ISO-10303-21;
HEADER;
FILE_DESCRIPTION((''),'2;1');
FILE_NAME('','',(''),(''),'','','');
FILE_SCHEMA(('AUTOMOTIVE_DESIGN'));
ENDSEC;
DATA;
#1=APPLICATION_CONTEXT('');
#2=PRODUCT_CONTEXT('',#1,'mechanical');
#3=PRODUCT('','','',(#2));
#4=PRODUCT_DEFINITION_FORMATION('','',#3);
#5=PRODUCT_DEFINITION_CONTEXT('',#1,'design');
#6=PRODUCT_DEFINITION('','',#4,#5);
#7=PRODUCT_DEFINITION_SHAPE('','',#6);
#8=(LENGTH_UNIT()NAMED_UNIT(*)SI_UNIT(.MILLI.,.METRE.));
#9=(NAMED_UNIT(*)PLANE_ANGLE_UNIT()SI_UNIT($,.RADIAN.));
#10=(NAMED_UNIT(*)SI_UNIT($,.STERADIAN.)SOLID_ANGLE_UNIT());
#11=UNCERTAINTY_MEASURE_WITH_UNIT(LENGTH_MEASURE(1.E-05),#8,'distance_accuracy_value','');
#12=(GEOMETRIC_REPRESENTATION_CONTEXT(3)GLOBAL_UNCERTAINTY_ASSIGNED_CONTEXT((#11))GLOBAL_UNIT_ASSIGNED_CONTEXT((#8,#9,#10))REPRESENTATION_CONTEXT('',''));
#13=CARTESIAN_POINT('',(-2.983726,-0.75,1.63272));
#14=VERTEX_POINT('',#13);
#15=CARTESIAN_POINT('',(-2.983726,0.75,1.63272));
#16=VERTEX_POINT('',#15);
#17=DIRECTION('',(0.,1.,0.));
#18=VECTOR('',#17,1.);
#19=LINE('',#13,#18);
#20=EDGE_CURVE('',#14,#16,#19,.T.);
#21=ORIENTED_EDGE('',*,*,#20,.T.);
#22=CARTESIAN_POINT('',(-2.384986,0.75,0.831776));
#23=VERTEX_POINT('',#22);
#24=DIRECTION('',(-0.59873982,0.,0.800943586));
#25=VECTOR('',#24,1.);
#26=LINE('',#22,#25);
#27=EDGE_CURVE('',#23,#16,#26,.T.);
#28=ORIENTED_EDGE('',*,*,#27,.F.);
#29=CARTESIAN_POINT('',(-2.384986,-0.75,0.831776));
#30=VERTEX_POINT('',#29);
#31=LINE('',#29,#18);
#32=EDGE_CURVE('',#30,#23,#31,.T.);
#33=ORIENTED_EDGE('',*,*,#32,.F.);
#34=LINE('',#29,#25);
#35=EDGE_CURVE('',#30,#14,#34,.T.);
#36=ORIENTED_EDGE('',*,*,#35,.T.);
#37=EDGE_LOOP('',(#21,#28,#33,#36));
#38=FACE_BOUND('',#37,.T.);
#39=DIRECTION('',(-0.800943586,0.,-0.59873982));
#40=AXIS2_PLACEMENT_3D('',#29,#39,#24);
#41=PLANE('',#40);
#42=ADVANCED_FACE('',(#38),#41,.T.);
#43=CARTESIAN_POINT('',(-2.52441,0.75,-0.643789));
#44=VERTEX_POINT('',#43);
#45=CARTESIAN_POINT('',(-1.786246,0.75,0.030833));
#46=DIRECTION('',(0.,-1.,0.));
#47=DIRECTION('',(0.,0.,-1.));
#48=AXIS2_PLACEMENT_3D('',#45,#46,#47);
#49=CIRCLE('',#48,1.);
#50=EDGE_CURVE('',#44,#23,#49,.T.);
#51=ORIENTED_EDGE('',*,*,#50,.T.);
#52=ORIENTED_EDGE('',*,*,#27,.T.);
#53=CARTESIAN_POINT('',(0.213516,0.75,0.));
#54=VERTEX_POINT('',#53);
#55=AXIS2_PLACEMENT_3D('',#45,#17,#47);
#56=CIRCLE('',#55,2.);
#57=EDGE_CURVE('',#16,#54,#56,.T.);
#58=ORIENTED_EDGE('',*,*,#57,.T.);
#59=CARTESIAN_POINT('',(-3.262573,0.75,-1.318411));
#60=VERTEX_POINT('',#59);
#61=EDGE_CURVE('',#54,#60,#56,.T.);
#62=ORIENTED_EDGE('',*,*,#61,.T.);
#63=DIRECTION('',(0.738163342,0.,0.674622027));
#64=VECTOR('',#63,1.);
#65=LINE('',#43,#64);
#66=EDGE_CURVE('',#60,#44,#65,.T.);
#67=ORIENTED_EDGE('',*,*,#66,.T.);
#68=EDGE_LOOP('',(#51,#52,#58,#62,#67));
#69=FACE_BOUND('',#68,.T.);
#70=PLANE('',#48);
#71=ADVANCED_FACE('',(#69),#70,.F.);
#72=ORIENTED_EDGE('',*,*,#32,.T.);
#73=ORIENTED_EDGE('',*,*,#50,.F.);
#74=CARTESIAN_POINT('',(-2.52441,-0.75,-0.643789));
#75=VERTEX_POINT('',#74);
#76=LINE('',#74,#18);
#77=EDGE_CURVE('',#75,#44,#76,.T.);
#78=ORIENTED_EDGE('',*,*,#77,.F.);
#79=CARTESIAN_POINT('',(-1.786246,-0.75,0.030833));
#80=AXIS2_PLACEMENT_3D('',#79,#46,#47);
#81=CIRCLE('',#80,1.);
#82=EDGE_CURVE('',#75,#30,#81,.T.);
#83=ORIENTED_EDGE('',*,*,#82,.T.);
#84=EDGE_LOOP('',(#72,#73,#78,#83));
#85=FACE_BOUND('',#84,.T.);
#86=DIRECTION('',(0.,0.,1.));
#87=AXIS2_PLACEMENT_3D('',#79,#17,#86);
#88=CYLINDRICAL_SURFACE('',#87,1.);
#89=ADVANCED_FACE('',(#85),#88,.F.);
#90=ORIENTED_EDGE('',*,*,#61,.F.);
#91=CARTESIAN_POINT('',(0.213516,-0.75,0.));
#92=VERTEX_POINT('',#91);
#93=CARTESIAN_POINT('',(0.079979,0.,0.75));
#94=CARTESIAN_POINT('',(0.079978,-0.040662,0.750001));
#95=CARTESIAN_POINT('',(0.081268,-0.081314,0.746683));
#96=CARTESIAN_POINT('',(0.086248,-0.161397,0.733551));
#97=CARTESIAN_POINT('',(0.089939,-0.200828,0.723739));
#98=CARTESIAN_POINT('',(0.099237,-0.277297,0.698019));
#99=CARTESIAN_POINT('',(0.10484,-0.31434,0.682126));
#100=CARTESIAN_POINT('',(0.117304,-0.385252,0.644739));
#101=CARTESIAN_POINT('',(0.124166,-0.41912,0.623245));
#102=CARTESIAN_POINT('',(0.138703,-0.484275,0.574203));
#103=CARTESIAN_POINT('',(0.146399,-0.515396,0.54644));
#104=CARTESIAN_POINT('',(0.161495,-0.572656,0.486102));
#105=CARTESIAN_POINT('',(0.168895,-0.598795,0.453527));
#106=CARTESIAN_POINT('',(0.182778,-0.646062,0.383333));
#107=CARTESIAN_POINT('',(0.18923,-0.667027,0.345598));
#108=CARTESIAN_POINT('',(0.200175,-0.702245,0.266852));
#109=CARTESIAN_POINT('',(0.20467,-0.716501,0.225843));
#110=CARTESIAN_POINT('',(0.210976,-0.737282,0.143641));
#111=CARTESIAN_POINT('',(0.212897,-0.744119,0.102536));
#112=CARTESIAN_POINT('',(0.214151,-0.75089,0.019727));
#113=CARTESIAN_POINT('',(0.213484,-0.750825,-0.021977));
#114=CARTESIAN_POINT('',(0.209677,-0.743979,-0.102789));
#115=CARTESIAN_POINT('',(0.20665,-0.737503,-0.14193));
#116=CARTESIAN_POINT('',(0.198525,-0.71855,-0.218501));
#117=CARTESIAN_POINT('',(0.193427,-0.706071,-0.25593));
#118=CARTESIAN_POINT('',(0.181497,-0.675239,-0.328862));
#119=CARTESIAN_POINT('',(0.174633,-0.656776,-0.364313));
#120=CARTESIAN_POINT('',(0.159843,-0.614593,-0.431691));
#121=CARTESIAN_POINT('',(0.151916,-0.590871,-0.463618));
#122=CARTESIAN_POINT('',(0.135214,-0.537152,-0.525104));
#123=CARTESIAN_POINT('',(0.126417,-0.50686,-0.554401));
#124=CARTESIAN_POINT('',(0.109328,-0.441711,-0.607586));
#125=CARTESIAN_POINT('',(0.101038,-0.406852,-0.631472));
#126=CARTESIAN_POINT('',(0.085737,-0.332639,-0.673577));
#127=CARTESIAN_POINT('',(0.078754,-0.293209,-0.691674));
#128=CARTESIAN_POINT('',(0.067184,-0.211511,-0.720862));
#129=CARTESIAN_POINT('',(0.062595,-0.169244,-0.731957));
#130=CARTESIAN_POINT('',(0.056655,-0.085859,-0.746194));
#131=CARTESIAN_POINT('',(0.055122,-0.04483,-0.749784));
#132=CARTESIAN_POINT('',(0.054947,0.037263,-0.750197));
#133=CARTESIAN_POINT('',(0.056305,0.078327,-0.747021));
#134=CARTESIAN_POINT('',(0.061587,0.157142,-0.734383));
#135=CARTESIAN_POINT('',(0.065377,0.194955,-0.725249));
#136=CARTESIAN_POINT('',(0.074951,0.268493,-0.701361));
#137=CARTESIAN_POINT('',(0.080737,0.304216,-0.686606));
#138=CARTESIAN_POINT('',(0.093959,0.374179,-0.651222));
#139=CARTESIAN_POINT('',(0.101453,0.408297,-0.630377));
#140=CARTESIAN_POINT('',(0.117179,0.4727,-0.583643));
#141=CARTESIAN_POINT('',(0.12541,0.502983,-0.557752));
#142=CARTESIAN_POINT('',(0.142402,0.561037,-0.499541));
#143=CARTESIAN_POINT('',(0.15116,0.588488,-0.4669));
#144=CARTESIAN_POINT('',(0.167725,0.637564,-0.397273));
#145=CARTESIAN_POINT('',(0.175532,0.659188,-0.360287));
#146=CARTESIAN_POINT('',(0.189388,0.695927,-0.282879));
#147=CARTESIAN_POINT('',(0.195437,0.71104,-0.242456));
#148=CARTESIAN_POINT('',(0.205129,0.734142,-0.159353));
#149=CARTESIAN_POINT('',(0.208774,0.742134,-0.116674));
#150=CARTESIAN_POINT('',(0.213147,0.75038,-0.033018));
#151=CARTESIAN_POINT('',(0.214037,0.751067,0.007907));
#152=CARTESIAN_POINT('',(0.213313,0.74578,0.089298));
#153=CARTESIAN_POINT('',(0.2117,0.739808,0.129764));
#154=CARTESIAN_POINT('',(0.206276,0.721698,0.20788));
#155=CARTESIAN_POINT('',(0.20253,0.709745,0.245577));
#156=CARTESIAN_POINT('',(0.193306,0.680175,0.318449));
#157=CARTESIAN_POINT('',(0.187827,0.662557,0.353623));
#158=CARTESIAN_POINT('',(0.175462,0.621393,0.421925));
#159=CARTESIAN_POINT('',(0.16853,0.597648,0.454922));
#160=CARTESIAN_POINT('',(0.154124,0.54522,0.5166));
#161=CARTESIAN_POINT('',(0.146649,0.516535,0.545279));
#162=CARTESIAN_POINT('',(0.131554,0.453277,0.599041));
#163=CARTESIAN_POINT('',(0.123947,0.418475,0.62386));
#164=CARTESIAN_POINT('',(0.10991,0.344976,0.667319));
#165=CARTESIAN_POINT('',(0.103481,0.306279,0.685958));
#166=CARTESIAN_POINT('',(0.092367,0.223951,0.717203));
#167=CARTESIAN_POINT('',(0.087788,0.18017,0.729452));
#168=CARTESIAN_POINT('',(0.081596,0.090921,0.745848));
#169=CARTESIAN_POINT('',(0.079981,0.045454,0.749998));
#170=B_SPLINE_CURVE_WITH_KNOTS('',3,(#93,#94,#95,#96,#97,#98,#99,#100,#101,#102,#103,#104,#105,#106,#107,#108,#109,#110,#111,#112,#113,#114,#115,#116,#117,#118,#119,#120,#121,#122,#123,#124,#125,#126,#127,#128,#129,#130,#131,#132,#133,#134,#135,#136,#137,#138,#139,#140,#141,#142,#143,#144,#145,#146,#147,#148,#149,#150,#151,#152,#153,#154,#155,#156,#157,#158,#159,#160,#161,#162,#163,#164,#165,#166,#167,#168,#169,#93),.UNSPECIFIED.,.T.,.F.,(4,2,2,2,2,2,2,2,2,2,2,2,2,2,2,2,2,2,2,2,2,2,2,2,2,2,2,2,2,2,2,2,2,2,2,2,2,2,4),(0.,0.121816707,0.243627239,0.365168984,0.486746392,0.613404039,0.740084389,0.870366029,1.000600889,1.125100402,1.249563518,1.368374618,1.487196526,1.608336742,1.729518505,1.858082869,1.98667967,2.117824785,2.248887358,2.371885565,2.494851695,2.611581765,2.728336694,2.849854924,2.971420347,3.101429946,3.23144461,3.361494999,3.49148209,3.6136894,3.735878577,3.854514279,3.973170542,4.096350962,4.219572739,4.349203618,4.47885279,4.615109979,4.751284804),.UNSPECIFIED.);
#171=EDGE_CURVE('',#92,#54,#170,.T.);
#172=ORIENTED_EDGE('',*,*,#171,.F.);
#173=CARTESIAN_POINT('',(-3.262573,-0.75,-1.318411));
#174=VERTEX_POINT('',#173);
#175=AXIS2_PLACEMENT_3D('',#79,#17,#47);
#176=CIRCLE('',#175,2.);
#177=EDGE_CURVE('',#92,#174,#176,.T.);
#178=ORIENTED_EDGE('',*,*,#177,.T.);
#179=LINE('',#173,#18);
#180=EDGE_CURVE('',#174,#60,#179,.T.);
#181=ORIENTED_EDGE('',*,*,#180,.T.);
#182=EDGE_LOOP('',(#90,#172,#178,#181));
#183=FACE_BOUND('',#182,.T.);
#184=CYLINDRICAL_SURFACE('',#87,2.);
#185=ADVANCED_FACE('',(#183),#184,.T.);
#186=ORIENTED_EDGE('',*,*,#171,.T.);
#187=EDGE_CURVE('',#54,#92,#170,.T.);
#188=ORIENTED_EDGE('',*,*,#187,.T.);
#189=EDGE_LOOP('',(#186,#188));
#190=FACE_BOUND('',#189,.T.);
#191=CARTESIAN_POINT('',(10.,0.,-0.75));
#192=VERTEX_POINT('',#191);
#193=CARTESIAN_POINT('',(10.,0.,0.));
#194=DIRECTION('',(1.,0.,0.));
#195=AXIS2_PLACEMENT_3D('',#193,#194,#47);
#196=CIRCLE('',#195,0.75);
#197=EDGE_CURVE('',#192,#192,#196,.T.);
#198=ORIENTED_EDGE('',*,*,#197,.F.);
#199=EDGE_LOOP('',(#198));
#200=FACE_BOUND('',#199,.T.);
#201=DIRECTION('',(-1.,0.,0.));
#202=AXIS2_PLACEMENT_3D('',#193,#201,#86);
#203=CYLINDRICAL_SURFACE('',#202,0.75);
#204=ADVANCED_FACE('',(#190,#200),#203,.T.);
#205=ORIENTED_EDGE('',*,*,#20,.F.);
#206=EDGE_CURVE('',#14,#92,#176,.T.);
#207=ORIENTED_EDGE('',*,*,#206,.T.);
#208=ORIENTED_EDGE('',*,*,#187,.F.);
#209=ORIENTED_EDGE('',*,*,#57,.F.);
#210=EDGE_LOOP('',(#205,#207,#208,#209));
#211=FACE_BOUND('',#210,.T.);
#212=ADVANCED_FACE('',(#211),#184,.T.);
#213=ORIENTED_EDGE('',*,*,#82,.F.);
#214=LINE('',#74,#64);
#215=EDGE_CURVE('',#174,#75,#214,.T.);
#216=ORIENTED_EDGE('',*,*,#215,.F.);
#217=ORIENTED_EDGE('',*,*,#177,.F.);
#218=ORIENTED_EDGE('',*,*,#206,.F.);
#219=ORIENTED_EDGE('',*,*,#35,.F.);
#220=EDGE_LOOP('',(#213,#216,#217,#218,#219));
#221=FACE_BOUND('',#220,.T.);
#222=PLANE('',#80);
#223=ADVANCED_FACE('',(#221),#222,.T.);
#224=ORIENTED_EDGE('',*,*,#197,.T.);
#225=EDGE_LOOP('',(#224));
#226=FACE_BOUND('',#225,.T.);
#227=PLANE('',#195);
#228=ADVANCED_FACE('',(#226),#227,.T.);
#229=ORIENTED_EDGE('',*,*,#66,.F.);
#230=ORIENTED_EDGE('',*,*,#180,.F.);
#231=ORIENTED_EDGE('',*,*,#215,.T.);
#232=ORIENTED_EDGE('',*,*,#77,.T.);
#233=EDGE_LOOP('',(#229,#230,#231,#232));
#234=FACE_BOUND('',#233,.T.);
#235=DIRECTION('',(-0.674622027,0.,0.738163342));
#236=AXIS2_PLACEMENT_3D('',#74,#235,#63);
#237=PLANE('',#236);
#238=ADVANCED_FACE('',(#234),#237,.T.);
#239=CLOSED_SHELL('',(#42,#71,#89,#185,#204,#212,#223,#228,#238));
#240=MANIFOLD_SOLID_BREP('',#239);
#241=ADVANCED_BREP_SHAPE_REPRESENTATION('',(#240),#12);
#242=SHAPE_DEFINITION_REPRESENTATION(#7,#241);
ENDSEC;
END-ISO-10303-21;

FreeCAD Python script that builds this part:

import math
import FreeCAD as App
import Part
import Sketcher
Q = App.Units.Quantity

doc = App.newDocument("Part")
body = doc.addObject("PartDesign::Body", "Body")

# Sketch on YZ plane
sketch1 = body.newObject("Sketcher::SketchObject", "Sketch")
sketch1.AttachmentSupport = (doc.getObject("YZ_Plane"), [""])
sketch1.MapMode = "FlatFace"
sketch1.addGeometry(Part.Circle(App.Vector(0, 0, 0), App.Vector(0, 0, 1), 0.75), False)
sketch1.addConstraint([
    Sketcher.Constraint("Coincident", 0, 3, -1, 1),
    Sketcher.Constraint("Diameter", 0, Q("1.5 mm")),
])
pad1 = body.newObject("PartDesign::Pad", "Pad")
pad1.Profile = sketch1
pad1.Length = 10

# Sketch on XZ plane
sketch2 = body.newObject("Sketcher::SketchObject", "Sketch001")
sketch2.AttachmentSupport = (doc.getObject("XZ_Plane"), [""])
sketch2.MapMode = "FlatFace"
sketch2.addGeometry([
    Part.LineSegment(App.Vector(-3.262573, -1.318411, 0), App.Vector(-2.52441, -0.643789, 0)),
    Part.ArcOfCircle(Part.Circle(App.Vector(-1.786246, 0.030833, 0), App.Vector(0, 0, 1), 1), math.radians(-137.575195), math.radians(126.779697)),
    Part.LineSegment(App.Vector(-2.384986, 0.831776, 0), App.Vector(-2.983726, 1.63272, 0)),
    Part.ArcOfCircle(Part.Circle(App.Vector(-1.786246, 0.030833, 0), App.Vector(0, 0, 1), 2), math.radians(-137.575195), math.radians(126.779697)),
], False)
sketch2.addConstraint([
    Sketcher.Constraint("Coincident", 0, 2, 1, 1),
    Sketcher.Constraint("Coincident", 1, 2, 2, 1),
    Sketcher.Constraint("Coincident", 2, 2, 3, 2),
    Sketcher.Constraint("Coincident", 3, 1, 0, 1),
    Sketcher.Constraint("Coincident", 3, 3, 1, 3),
    Sketcher.Constraint("Radius", 1, Q("1 mm")),
    Sketcher.Constraint("Radius", 3, Q("2 mm")),
    Sketcher.Constraint("DistanceX", 0, 2, -1, 1, Q("2.52441 mm")),
    Sketcher.Constraint("DistanceY", 0, 2, -1, 1, Q("0.643789 mm")),
    Sketcher.Constraint("DistanceY", -1, 1, 2, 2, Q("1.63272 mm")),
    Sketcher.Constraint("DistanceY", 3, 1, -1, 1, Q("1.318411 mm")),
    Sketcher.Constraint("DistanceX", 1, 2, 1, 3, Q("0.59874 mm")),
    Sketcher.Constraint("DistanceX", 2, 2, 1, 2, Q("0.59874 mm")),
])
pad2 = body.newObject("PartDesign::Pad", "Pad001")
pad2.Profile = sketch2
pad2.Type = "TwoLengths"
pad2.Length = 0.75
pad2.Length2 = 0.75
pad2.Reversed = True

doc.recompute()
